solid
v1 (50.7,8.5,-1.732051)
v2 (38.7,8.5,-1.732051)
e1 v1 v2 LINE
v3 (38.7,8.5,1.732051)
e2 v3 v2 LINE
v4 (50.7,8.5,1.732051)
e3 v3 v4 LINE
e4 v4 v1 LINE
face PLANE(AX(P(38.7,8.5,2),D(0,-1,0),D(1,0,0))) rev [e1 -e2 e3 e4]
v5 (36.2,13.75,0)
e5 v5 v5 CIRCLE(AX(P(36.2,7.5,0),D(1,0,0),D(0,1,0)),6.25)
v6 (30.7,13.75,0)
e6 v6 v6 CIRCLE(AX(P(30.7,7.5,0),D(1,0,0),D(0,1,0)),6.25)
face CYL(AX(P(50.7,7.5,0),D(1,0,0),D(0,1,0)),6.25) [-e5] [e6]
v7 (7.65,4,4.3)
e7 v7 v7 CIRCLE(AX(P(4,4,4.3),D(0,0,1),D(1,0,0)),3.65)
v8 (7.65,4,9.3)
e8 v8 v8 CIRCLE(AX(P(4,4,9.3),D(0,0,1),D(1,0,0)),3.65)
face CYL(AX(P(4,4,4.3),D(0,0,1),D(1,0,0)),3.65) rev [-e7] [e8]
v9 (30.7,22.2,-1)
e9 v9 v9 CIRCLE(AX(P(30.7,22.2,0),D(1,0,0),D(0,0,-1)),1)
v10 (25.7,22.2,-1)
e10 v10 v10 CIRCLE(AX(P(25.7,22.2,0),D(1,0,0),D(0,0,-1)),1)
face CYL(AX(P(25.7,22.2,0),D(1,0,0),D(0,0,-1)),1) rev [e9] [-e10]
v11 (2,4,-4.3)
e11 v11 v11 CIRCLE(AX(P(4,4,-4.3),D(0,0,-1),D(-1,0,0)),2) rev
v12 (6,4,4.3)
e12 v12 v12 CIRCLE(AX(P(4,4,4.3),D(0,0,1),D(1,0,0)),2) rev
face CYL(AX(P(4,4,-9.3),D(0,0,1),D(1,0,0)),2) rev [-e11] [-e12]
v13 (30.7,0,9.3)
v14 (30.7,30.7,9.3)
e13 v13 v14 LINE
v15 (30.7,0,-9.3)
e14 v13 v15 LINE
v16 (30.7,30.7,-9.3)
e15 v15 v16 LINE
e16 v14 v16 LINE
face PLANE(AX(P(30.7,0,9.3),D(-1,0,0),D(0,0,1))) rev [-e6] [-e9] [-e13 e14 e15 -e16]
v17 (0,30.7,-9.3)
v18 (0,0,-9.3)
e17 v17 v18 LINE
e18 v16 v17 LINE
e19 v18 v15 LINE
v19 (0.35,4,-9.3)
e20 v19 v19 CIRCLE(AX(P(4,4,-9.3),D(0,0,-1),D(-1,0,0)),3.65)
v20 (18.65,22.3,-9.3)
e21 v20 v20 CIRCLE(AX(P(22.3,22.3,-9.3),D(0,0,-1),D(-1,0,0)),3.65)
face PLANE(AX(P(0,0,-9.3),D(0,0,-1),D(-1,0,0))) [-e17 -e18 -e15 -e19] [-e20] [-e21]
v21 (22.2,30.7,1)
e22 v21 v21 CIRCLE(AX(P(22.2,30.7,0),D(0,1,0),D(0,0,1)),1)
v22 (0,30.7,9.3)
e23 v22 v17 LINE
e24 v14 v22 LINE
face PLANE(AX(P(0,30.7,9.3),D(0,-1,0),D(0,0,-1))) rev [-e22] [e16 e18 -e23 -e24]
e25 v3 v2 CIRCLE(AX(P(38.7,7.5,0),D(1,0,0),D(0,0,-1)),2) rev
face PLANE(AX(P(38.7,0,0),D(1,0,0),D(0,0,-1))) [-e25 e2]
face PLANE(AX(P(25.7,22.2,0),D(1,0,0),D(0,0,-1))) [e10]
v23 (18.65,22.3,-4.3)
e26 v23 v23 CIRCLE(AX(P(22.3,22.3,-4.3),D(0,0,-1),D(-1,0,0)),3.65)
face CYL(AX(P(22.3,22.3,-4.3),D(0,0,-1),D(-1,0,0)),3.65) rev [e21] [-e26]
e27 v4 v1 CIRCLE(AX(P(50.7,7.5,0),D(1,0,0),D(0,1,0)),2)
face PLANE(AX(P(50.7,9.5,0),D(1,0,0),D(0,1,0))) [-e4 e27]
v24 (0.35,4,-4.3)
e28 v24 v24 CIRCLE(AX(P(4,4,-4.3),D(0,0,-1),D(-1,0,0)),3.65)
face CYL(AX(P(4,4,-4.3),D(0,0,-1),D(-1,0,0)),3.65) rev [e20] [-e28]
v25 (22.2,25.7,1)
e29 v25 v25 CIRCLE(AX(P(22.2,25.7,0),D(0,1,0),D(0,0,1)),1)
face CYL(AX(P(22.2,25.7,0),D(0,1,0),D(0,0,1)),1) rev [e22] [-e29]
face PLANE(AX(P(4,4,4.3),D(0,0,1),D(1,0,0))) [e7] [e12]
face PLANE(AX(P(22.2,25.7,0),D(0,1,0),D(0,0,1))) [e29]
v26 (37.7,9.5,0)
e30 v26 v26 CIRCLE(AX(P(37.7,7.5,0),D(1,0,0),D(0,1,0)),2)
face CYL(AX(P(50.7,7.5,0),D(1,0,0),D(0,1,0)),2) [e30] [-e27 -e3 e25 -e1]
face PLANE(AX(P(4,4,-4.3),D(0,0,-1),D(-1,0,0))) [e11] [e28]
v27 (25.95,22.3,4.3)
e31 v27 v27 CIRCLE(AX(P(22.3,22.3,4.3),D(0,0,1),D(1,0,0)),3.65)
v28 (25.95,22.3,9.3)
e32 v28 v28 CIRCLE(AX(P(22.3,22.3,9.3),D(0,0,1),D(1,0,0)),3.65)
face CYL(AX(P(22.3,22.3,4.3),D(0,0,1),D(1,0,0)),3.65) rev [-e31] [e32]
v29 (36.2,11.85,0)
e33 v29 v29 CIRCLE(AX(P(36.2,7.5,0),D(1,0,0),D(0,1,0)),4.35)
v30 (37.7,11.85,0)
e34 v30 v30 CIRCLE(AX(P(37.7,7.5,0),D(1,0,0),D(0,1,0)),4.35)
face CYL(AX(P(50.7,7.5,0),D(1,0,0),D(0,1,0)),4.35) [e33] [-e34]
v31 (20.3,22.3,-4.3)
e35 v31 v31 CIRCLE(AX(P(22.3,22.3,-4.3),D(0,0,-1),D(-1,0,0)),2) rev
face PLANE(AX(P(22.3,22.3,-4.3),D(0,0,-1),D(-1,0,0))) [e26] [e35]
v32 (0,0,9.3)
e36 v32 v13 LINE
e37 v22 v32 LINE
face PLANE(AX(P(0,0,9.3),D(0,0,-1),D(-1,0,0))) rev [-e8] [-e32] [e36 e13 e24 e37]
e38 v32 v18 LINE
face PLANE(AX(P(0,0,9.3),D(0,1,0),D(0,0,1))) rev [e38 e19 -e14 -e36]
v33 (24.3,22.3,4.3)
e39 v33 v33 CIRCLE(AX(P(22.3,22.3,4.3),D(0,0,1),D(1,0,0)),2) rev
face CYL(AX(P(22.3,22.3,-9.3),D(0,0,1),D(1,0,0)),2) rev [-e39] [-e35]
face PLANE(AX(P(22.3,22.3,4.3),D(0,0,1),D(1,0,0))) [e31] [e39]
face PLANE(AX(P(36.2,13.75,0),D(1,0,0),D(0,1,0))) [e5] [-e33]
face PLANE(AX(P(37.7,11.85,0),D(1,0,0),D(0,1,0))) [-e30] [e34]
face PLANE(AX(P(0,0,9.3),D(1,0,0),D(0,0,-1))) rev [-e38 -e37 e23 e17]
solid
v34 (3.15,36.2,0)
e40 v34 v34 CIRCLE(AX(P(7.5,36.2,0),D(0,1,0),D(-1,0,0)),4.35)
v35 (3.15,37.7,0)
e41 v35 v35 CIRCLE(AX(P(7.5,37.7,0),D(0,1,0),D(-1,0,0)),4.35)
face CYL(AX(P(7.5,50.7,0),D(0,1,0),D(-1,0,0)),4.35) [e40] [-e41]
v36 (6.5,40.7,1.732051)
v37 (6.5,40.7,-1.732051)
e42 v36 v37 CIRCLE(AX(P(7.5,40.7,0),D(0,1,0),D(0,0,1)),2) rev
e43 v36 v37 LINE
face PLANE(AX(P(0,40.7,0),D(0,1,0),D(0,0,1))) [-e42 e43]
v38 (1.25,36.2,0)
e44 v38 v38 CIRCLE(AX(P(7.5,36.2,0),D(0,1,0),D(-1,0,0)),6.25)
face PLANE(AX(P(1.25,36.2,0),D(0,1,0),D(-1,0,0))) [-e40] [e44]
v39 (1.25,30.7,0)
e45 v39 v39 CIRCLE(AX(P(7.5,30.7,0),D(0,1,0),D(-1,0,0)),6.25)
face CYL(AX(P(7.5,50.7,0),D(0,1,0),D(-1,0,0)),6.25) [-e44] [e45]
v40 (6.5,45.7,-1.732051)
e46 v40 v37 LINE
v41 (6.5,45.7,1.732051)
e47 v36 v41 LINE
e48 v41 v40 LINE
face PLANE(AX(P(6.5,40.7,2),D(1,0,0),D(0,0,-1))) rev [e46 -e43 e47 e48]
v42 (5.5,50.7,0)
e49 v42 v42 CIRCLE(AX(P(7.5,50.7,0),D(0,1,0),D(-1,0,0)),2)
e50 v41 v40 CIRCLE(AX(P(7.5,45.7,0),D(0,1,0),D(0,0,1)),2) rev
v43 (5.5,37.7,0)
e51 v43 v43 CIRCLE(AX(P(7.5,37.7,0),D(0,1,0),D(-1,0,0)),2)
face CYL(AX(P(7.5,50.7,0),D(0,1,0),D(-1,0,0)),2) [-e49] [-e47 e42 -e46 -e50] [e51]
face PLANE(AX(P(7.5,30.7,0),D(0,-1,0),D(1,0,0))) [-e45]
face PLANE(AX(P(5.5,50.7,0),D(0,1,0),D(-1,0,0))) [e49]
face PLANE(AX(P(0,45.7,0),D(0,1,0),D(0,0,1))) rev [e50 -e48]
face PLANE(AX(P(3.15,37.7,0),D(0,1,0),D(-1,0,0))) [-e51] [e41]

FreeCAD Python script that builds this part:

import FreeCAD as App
import Part
import Sketcher
Q = App.Units.Quantity

doc = App.newDocument("Part")
body = doc.addObject("PartDesign::Body", "Body")

# Sketch on XY plane
sketch1 = body.newObject("Sketcher::SketchObject", "Sketch")
sketch1.AttachmentSupport = (doc.getObject("XY_Plane"), [""])
sketch1.MapMode = "FlatFace"
sketch1.addGeometry([
    Part.LineSegment(App.Vector(0, 31, 0), App.Vector(0, 0, 0)),
    Part.LineSegment(App.Vector(0, 0, 0), App.Vector(31, 0, 0)),
    Part.LineSegment(App.Vector(31, 0, 0), App.Vector(31, 31, 0)),
    Part.LineSegment(App.Vector(31, 31, 0), App.Vector(0, 31, 0)),
], False)
sketch1.addConstraint([
    Sketcher.Constraint("Coincident", 0, 2, 1, 1),
    Sketcher.Constraint("Coincident", 1, 2, 2, 1),
    Sketcher.Constraint("Coincident", 2, 2, 3, 1),
    Sketcher.Constraint("Coincident", 3, 2, 0, 1),
    Sketcher.Constraint("Vertical", 0),
    Sketcher.Constraint("Horizontal", 1),
    Sketcher.Constraint("Vertical", 2),
    Sketcher.Constraint("Horizontal", 3),
    Sketcher.Constraint("Coincident", 0, 2, -1, 1),
    Sketcher.Constraint("Equal", 3, 0),
    Sketcher.Constraint("DistanceX", 1, 1, 1, 2, Q("30.7 mm")),
])
pad1 = body.newObject("PartDesign::Pad", "Pad")
pad1.Profile = sketch1
pad1.Length = 18.6
pad1.Midplane = True

# Sketch on XY plane
sketch2 = body.newObject("Sketcher::SketchObject", "Sketch001")
sketch2.AttachmentSupport = (doc.getObject("XY_Plane"), [""])
sketch2.MapMode = "FlatFace"
sketch2.AttachmentOffset = App.Placement(App.Vector(0, 0, 9.3), App.Rotation())
sketch2.addGeometry([
    Part.Circle(App.Vector(4, 4, 0), App.Vector(0, 0, 1), 2),
    Part.Circle(App.Vector(22.3, 22.3, 0), App.Vector(0, 0, 1), 2),
], False)
sketch2.addConstraint([
    Sketcher.Constraint("Equal", 0, 1),
    Sketcher.Constraint("Diameter", 0, Q("4 mm")),
    Sketcher.Constraint("DistanceX", -1, 1, 0, 3, Q("4 mm")),
    Sketcher.Constraint("DistanceY", -1, 1, 0, 3, Q("4 mm")),
    Sketcher.Constraint("DistanceX", -1, 1, 1, 3, Q("22.3 mm")),
    Sketcher.Constraint("DistanceY", -1, 1, 1, 3, Q("22.3 mm")),
])
pocket1 = body.newObject("PartDesign::Pocket", "Pocket")
pocket1.Profile = sketch2
pocket1.Type = "ThroughAll"

# Sketch on XY plane
sketch3 = body.newObject("Sketcher::SketchObject", "Sketch002")
sketch3.AttachmentSupport = (doc.getObject("XY_Plane"), [""])
sketch3.MapMode = "FlatFace"
sketch3.AttachmentOffset = App.Placement(App.Vector(0, 0, 9.3), App.Rotation())
sketch3.addGeometry([
    Part.Circle(App.Vector(4, 4, 0), App.Vector(0, 0, 1), 3.6),
    Part.Circle(App.Vector(22.3, 22.3, 0), App.Vector(0, 0, 1), 3.6),
], False)
sketch3.addConstraint([
    Sketcher.Constraint("Equal", 0, 1),
    Sketcher.Constraint("Diameter", 0, Q("7.3 mm")),
    Sketcher.Constraint("DistanceX", -1, 1, 0, 3, Q("4 mm")),
    Sketcher.Constraint("DistanceY", -1, 1, 0, 3, Q("4 mm")),
    Sketcher.Constraint("DistanceX", -1, 1, 1, 3, Q("22.3 mm")),
    Sketcher.Constraint("DistanceY", -1, 1, 1, 3, Q("22.3 mm")),
])
pocket2 = body.newObject("PartDesign::Pocket", "Pocket001")
pocket2.Profile = sketch3
pocket2.Length = 5

# Sketch on XY plane
sketch4 = body.newObject("Sketcher::SketchObject", "Sketch003")
sketch4.AttachmentSupport = (doc.getObject("XY_Plane"), [""])
sketch4.MapMode = "FlatFace"
sketch4.AttachmentOffset = App.Placement(App.Vector(0, 0, -9.3), App.Rotation())
sketch4.addGeometry([
    Part.Circle(App.Vector(4, 4, 0), App.Vector(0, 0, 1), 3.6),
    Part.Circle(App.Vector(22.3, 22.3, 0), App.Vector(0, 0, 1), 3.6),
], False)
sketch4.addConstraint([
    Sketcher.Constraint("Equal", 0, 1),
    Sketcher.Constraint("Diameter", 0, Q("7.3 mm")),
    Sketcher.Constraint("DistanceX", -1, 1, 0, 3, Q("4 mm")),
    Sketcher.Constraint("DistanceY", -1, 1, 0, 3, Q("4 mm")),
    Sketcher.Constraint("DistanceX", -1, 1, 1, 3, Q("22.3 mm")),
    Sketcher.Constraint("DistanceY", -1, 1, 1, 3, Q("22.3 mm")),
])
pocket3 = body.newObject("PartDesign::Pocket", "Pocket002")
pocket3.Profile = sketch4
pocket3.Length = 5
pocket3.Reversed = True

# Sketch on XY plane
sketch5 = body.newObject("Sketcher::SketchObject", "Sketch004")
sketch5.AttachmentSupport = (doc.getObject("XY_Plane"), [""])
sketch5.MapMode = "FlatFace"
sketch5.addGeometry([
    Part.LineSegment(App.Vector(36.2, 13.8, 0), App.Vector(30.7, 13.8, 0)),  # 0
    Part.LineSegment(App.Vector(30.7, 13.8, 0), App.Vector(30.7, 7.5, 0)),  # 1
    Part.LineSegment(App.Vector(30.7, 7.5, 0), App.Vector(50.7, 7.5, 0)),  # 2
    Part.LineSegment(App.Vector(50.7, 7.5, 0), App.Vector(50.7, 9.5, 0)),  # 3
    Part.LineSegment(App.Vector(50.7, 9.5, 0), App.Vector(37.7, 9.5, 0)),  # 4
    Part.LineSegment(App.Vector(37.7, 9.5, 0), App.Vector(37.7, 11.8, 0)),  # 5
    Part.LineSegment(App.Vector(37.7, 11.8, 0), App.Vector(36.2, 11.8, 0)),  # 6
    Part.LineSegment(App.Vector(36.2, 11.8, 0), App.Vector(36.2, 13.8, 0)),  # 7
], False)
sketch5.addGeometry(Part.LineSegment(App.Vector(50.7, 7.5, 0), App.Vector(30.7, 7.5, 0)), True)  # axis
sketch5.addConstraint([
    Sketcher.Constraint("Coincident", 0, 2, 1, 1),
    Sketcher.Constraint("Coincident", 1, 2, 2, 1),
    Sketcher.Constraint("Coincident", 2, 2, 3, 1),
    Sketcher.Constraint("Coincident", 3, 2, 4, 1),
    Sketcher.Constraint("Coincident", 4, 2, 5, 1),
    Sketcher.Constraint("Coincident", 5, 2, 6, 1),
    Sketcher.Constraint("Coincident", 6, 2, 7, 1),
    Sketcher.Constraint("Coincident", 7, 2, 0, 1),
    Sketcher.Constraint("Horizontal", 0),
    Sketcher.Constraint("Vertical", 1),
    Sketcher.Constraint("Horizontal", 2),
    Sketcher.Constraint("Vertical", 3),
    Sketcher.Constraint("Horizontal", 4),
    Sketcher.Constraint("Vertical", 5),
    Sketcher.Constraint("Horizontal", 6),
    Sketcher.Constraint("Vertical", 7),
    Sketcher.Constraint("Horizontal", 8),
    Sketcher.Constraint("Coincident", 8, 1, 2, 2),
    Sketcher.Constraint("Vertical", 0, 2, 8, 2),
    Sketcher.Constraint("DistanceX", 2, 1, 2, 2, Q("20 mm")),
    Sketcher.Constraint("DistanceX", 4, 2, 4, 1, Q("13 mm")),
    Sketcher.Constraint("DistanceY", 3, 1, 3, 2, Q("2 mm")),
    Sketcher.Constraint("DistanceX", 0, 2, 0, 1, Q("5.5 mm")),
    Sketcher.Constraint("DistanceY", 7, 1, 7, 2, Q("1.9 mm")),
    Sketcher.Constraint("DistanceY", 1, 2, 1, 1, Q("6.25 mm")),
    Sketcher.Constraint("DistanceX", -1, 1, 0, 2, Q("30.7 mm")),
    Sketcher.Constraint("DistanceY", -1, 1, 1, 2, Q("7.5 mm")),
])
revolution = body.newObject("PartDesign::Revolution", "Revolution")
revolution.Profile = sketch5
revolution.ReferenceAxis = (sketch5, ["Axis0"])
revolution.Angle = 360

# Sketch on YZ plane
sketch6 = body.newObject("Sketcher::SketchObject", "Sketch005")
sketch6.AttachmentSupport = (doc.getObject("YZ_Plane"), [""])
sketch6.MapMode = "FlatFace"
sketch6.AttachmentOffset = App.Placement(App.Vector(0, 0, 50.7), App.Rotation())
sketch6.addGeometry([
    Part.LineSegment(App.Vector(9.5, 2, 0), App.Vector(8.5, 2, 0)),
    Part.LineSegment(App.Vector(8.5, 2, 0), App.Vector(8.5, -2, 0)),
    Part.LineSegment(App.Vector(8.5, -2, 0), App.Vector(9.5, -2, 0)),
    Part.LineSegment(App.Vector(9.5, -2, 0), App.Vector(9.5, 2, 0)),
], False)
sketch6.addConstraint([
    Sketcher.Constraint("Coincident", 0, 2, 1, 1),
    Sketcher.Constraint("Coincident", 1, 2, 2, 1),
    Sketcher.Constraint("Coincident", 2, 2, 3, 1),
    Sketcher.Constraint("Coincident", 3, 2, 0, 1),
    Sketcher.Constraint("Horizontal", 0),
    Sketcher.Constraint("Vertical", 1),
    Sketcher.Constraint("Horizontal", 2),
    Sketcher.Constraint("Vertical", 3),
    Sketcher.Constraint("DistanceX", 0, 2, 0, 1, Q("1 mm")),
    Sketcher.Constraint("DistanceY", 1, 2, 1, 1, Q("4 mm")),
    Sketcher.Constraint("DistanceY", -1, 1, 0, 2, Q("2 mm")),
    Sketcher.Constraint("DistanceX", -1, 1, 0, 2, Q("8.5 mm")),
])
pocket4 = body.newObject("PartDesign::Pocket", "Pocket003")
pocket4.Profile = sketch6
pocket4.Length = 12

# Sketch on YZ plane
sketch7 = body.newObject("Sketcher::SketchObject", "Sketch006")
sketch7.AttachmentSupport = (doc.getObject("YZ_Plane"), [""])
sketch7.MapMode = "FlatFace"
sketch7.AttachmentOffset = App.Placement(App.Vector(0, 0, 30.7), App.Rotation())
sketch7.addGeometry(Part.Circle(App.Vector(22.2, 0, 0), App.Vector(0, 0, 1), 1), False)
sketch7.addConstraint([
    Sketcher.Constraint("PointOnObject", 0, 3, -1),
    Sketcher.Constraint("Diameter", 0, Q("2 mm")),
    Sketcher.Constraint("DistanceX", -1, 1, 0, 3, Q("22.2 mm")),
])
pocket5 = body.newObject("PartDesign::Pocket", "Pocket004")
pocket5.Profile = sketch7
pocket5.Length = 5

# Sketch on XZ plane
sketch8 = body.newObject("Sketcher::SketchObject", "Sketch007")
sketch8.AttachmentSupport = (doc.getObject("XZ_Plane"), [""])
sketch8.MapMode = "FlatFace"
sketch8.AttachmentOffset = App.Placement(App.Vector(0, 0, -30.7), App.Rotation())
sketch8.addGeometry(Part.Circle(App.Vector(22.2, 0, 0), App.Vector(0, 0, 1), 1), False)
sketch8.addConstraint([
    Sketcher.Constraint("PointOnObject", 0, 3, -1),
    Sketcher.Constraint("Diameter", 0, Q("2 mm")),
    Sketcher.Constraint("DistanceX", -1, 1, 0, 3, Q("22.2 mm")),
])
pocket6 = body.newObject("PartDesign::Pocket", "Pocket005")
pocket6.Profile = sketch8
pocket6.Length = 5
pocket6.Reversed = True
body2 = doc.addObject("PartDesign::Body", "Body001")

# Sketch on XY plane
sketch9 = body2.newObject("Sketcher::SketchObject", "Sketch008")
sketch9.AttachmentSupport = (doc.getObject("XY_Plane001"), [""])
sketch9.MapMode = "FlatFace"
sketch9.addGeometry([
    Part.LineSegment(App.Vector(1.2, 36.2, 0), App.Vector(1.2, 30.7, 0)),  # 0
    Part.LineSegment(App.Vector(1.2, 30.7, 0), App.Vector(7.5, 30.7, 0)),  # 1
    Part.LineSegment(App.Vector(7.5, 30.7, 0), App.Vector(7.5, 50.7, 0)),  # 2
    Part.LineSegment(App.Vector(7.5, 50.7, 0), App.Vector(5.5, 50.7, 0)),  # 3
    Part.LineSegment(App.Vector(5.5, 50.7, 0), App.Vector(5.5, 37.7, 0)),  # 4
    Part.LineSegment(App.Vector(5.5, 37.7, 0), App.Vector(3.1, 37.7, 0)),  # 5
    Part.LineSegment(App.Vector(3.1, 37.7, 0), App.Vector(3.1, 36.2, 0)),  # 6
    Part.LineSegment(App.Vector(3.1, 36.2, 0), App.Vector(1.2, 36.2, 0)),  # 7
], False)
sketch9.addGeometry(Part.LineSegment(App.Vector(7.5, 50.7, 0), App.Vector(7.5, 30.7, 0)), True)  # axis
sketch9.addConstraint([
    Sketcher.Constraint("Coincident", 0, 2, 1, 1),
    Sketcher.Constraint("Coincident", 1, 2, 2, 1),
    Sketcher.Constraint("Coincident", 2, 2, 3, 1),
    Sketcher.Constraint("Coincident", 3, 2, 4, 1),
    Sketcher.Constraint("Coincident", 4, 2, 5, 1),
    Sketcher.Constraint("Coincident", 5, 2, 6, 1),
    Sketcher.Constraint("Coincident", 6, 2, 7, 1),
    Sketcher.Constraint("Coincident", 7, 2, 0, 1),
    Sketcher.Constraint("Vertical", 0),
    Sketcher.Constraint("Horizontal", 1),
    Sketcher.Constraint("Vertical", 2),
    Sketcher.Constraint("Horizontal", 3),
    Sketcher.Constraint("Vertical", 4),
    Sketcher.Constraint("Horizontal", 5),
    Sketcher.Constraint("Vertical", 6),
    Sketcher.Constraint("Horizontal", 7),
    Sketcher.Constraint("Vertical", 8),
    Sketcher.Constraint("Coincident", 8, 1, 2, 2),
    Sketcher.Constraint("Horizontal", 0, 2, 8, 2),
    Sketcher.Constraint("DistanceX", 3, 2, 3, 1, Q("2 mm")),
    Sketcher.Constraint("DistanceY", 2, 1, 2, 2, Q("20 mm")),
    Sketcher.Constraint("DistanceY", 4, 2, 4, 1, Q("13 mm")),
    Sketcher.Constraint("DistanceX", 7, 2, 7, 1, Q("1.9 mm")),
    Sketcher.Constraint("DistanceY", 0, 2, 0, 1, Q("5.5 mm")),
    Sketcher.Constraint("DistanceX", 1, 1, 1, 2, Q("6.25 mm")),
    Sketcher.Constraint("DistanceY", -1, 1, 0, 2, Q("30.7 mm")),
    Sketcher.Constraint("DistanceX", -1, 1, 1, 2, Q("7.5 mm")),
])
revolution2 = body2.newObject("PartDesign::Revolution", "Revolution001")
revolution2.Profile = sketch9
revolution2.ReferenceAxis = (sketch9, ["Axis0"])
revolution2.Angle = 360

# Sketch on XZ plane
sketch10 = body2.newObject("Sketcher::SketchObject", "Sketch009")
sketch10.AttachmentSupport = (doc.getObject("XZ_Plane001"), [""])
sketch10.MapMode = "FlatFace"
sketch10.AttachmentOffset = App.Placement(App.Vector(0, 0, -45.7), App.Rotation())
sketch10.addGeometry([
    Part.LineSegment(App.Vector(5.5, -2, 0), App.Vector(5.5, 2, 0)),
    Part.LineSegment(App.Vector(5.5, 2, 0), App.Vector(6.5, 2, 0)),
    Part.LineSegment(App.Vector(6.5, 2, 0), App.Vector(6.5, -2, 0)),
    Part.LineSegment(App.Vector(6.5, -2, 0), App.Vector(5.5, -2, 0)),
], False)
sketch10.addConstraint([
    Sketcher.Constraint("Coincident", 0, 2, 1, 1),
    Sketcher.Constraint("Coincident", 1, 2, 2, 1),
    Sketcher.Constraint("Coincident", 2, 2, 3, 1),
    Sketcher.Constraint("Coincident", 3, 2, 0, 1),
    Sketcher.Constraint("Vertical", 0),
    Sketcher.Constraint("Horizontal", 1),
    Sketcher.Constraint("Vertical", 2),
    Sketcher.Constraint("Horizontal", 3),
    Sketcher.Constraint("DistanceX", 1, 1, 1, 2, Q("1 mm")),
    Sketcher.Constraint("DistanceY", 0, 1, 0, 2, Q("4 mm")),
    Sketcher.Constraint("DistanceY", -1, 1, 0, 2, Q("2 mm")),
    Sketcher.Constraint("DistanceX", -1, 1, 0, 2, Q("5.5 mm")),
])
pocket7 = body2.newObject("PartDesign::Pocket", "Pocket006")
pocket7.Profile = sketch10
pocket7.Length = 5
pocket7.Reversed = True

doc.recompute()
